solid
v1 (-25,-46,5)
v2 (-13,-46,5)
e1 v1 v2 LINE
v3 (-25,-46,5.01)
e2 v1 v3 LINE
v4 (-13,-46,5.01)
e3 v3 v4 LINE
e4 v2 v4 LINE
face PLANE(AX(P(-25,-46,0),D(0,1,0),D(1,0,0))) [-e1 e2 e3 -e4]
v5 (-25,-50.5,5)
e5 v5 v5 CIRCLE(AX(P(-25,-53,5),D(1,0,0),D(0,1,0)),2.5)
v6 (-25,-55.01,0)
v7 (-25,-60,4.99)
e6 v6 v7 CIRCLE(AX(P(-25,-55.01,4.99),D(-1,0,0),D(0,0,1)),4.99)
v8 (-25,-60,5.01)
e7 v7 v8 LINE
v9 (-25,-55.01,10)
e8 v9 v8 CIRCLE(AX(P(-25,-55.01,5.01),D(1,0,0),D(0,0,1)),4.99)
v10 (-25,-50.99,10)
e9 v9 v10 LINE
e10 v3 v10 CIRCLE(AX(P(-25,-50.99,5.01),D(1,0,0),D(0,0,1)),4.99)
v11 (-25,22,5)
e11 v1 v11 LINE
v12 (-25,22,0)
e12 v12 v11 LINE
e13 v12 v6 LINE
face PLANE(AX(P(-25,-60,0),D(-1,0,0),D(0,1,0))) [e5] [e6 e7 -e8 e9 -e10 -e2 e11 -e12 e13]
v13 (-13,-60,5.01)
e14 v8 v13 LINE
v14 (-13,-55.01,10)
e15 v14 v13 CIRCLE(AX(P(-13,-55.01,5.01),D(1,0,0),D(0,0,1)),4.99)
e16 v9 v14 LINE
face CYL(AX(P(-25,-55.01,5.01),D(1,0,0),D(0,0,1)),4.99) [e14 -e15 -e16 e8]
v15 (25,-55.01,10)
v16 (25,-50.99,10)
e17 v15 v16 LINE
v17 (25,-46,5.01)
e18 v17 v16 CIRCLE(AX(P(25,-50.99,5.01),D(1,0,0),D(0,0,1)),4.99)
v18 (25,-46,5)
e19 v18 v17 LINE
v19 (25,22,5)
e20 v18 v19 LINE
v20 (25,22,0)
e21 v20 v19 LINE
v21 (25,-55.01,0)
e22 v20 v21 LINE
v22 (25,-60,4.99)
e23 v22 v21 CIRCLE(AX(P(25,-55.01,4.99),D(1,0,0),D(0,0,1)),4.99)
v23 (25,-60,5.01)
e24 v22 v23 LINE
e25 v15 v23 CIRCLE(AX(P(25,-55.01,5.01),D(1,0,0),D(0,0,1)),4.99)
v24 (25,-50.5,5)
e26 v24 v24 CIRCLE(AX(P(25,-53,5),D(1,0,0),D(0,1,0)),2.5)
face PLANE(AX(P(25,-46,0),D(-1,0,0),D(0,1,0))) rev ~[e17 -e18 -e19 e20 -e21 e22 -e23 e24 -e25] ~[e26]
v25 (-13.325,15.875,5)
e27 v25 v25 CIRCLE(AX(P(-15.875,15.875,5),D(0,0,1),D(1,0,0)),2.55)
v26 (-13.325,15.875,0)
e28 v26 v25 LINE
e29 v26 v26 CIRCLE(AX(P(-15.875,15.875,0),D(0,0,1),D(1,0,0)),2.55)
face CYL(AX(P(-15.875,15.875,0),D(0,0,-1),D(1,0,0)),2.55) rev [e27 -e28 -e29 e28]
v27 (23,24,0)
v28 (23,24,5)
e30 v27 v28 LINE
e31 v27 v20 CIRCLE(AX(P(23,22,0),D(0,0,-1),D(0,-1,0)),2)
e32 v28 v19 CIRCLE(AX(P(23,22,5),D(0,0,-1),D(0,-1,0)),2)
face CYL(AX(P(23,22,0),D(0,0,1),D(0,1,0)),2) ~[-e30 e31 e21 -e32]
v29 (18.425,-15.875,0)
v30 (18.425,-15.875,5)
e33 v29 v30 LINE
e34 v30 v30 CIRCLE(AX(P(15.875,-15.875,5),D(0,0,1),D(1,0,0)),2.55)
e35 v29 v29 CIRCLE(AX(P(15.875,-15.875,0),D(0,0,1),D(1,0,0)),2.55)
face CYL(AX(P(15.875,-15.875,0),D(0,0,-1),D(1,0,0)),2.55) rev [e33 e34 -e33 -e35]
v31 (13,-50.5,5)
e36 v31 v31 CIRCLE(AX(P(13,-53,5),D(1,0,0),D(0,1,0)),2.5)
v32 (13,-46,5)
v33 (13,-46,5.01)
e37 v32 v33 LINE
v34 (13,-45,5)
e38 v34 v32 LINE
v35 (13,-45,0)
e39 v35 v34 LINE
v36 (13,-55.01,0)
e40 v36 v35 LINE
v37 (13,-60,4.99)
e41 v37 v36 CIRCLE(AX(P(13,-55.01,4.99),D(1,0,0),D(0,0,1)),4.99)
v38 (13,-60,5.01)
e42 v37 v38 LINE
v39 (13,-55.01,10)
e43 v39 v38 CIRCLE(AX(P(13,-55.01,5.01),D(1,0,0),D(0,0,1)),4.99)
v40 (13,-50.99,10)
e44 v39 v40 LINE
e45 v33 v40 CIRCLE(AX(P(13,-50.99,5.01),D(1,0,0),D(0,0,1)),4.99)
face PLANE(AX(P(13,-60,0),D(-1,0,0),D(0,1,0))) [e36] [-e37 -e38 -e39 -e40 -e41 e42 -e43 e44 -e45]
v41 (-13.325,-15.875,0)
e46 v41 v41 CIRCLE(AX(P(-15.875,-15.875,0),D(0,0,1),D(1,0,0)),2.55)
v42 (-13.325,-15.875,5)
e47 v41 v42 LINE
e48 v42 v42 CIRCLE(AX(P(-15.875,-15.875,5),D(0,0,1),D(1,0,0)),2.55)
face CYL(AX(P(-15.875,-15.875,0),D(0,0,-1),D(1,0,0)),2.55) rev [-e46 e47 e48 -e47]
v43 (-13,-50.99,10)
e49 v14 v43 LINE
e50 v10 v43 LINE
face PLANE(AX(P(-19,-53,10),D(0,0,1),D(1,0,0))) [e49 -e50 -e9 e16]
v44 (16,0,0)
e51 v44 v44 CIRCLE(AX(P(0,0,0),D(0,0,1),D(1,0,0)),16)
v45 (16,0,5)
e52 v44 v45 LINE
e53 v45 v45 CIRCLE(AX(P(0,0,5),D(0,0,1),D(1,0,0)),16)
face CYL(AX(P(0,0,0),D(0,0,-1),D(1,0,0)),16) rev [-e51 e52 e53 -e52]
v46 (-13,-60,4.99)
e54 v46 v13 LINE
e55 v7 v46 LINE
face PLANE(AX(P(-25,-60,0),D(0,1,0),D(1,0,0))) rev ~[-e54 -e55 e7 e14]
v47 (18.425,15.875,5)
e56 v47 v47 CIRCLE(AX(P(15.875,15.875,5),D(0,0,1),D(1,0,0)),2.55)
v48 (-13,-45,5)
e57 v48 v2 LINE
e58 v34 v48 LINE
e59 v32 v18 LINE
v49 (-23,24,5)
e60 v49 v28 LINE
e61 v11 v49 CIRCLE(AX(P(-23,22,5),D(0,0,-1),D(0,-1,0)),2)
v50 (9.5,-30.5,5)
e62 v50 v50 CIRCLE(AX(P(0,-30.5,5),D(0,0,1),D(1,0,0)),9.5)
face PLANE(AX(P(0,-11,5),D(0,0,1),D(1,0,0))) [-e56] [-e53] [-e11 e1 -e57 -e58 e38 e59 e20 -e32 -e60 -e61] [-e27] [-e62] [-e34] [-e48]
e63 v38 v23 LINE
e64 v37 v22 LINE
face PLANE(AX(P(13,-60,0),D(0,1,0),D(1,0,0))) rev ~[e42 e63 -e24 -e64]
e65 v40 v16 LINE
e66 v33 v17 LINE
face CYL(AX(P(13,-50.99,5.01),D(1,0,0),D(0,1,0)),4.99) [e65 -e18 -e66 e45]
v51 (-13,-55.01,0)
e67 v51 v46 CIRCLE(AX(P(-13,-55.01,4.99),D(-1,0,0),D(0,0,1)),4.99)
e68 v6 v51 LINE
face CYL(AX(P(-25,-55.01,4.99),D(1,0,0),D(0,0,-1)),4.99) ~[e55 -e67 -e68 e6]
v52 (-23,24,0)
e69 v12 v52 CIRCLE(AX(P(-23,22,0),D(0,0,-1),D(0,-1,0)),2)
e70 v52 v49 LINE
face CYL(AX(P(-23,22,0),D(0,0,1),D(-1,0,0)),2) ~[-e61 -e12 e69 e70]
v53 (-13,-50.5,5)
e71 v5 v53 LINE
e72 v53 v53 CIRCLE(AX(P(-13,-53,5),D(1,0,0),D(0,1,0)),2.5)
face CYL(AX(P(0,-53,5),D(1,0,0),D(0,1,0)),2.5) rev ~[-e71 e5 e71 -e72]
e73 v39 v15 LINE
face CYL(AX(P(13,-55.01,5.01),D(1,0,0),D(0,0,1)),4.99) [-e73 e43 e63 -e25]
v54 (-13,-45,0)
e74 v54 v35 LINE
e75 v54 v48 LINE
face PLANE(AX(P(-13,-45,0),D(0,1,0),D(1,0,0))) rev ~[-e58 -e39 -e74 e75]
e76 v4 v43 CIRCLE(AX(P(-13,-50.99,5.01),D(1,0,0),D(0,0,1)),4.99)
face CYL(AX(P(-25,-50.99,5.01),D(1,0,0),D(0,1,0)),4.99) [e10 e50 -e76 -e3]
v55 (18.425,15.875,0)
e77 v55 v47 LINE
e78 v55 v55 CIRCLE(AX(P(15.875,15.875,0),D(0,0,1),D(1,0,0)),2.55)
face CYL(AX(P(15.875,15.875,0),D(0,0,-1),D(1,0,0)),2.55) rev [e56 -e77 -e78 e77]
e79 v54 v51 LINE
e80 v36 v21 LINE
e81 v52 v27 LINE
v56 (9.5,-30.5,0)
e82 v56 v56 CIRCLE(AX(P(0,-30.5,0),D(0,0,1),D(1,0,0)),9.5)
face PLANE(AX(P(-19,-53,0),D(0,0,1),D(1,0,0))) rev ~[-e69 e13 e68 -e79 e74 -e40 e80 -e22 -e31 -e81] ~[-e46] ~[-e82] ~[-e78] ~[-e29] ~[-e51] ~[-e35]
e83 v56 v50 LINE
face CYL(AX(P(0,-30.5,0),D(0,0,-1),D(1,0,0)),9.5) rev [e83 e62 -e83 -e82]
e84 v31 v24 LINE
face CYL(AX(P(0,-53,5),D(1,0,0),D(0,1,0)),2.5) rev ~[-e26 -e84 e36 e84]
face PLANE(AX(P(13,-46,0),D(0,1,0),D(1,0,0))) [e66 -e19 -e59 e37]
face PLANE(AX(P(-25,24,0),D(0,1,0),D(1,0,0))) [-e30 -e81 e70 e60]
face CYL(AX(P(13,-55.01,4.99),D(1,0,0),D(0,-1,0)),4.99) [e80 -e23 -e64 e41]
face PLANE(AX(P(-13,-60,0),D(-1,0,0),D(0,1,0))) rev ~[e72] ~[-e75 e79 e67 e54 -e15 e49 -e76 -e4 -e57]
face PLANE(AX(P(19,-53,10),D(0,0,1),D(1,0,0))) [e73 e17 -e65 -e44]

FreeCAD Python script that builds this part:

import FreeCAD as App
import Part
import Sketcher


def edges_at(feature, points):
    """Names of the edges that pass closest to the given points."""
    edges = feature.Shape.Edges
    near = lambda p: min(range(len(edges)), key=lambda i: edges[i].distToShape(Part.Vertex(*p))[0])
    return sorted({f"Edge{near(p) + 1}" for p in points})


def add_polygon(sketch, points):
    """Adds a closed chain of lines whose ends are joined by coincident constraints."""
    first, n = sketch.GeometryCount, len(points)
    for a, b in zip(points, points[1:] + points[:1]):
        sketch.addGeometry(Part.LineSegment(App.Vector(*a, 0), App.Vector(*b, 0)), False)
    for i in range(n):
        sketch.addConstraint(Sketcher.Constraint("Coincident", first + i, 2, first + (i + 1) % n, 1))

doc = App.newDocument("Part")
body = doc.addObject("PartDesign::Body", "Body")

# Sketch on XY plane
sketch1 = body.newObject("Sketcher::SketchObject", "Sketch")
sketch1.AttachmentSupport = (doc.getObject("XY_Plane"), [""])
sketch1.MapMode = "FlatFace"
add_polygon(sketch1, [(-25, 24), (-25, -46), (25, -46), (25, 24)])  # lines 0-3
sketch1.addGeometry(Part.Circle(App.Vector(-15.9, -15.9, 0), App.Vector(0, 0, 1), 2.5), False)  # 4
sketch1.addGeometry(Part.Circle(App.Vector(0, -30.5, 0), App.Vector(0, 0, 1), 9.5), False)  # 5
sketch1.addGeometry(Part.Circle(App.Vector(15.9, -15.9, 0), App.Vector(0, 0, 1), 2.5), False)  # 6
sketch1.addGeometry(Part.Circle(App.Vector(-15.9, 15.9, 0), App.Vector(0, 0, 1), 2.5), False)  # 7
sketch1.addGeometry(Part.Circle(App.Vector(0, 0, 0), App.Vector(0, 0, 1), 16), False)  # 8
sketch1.addGeometry(Part.Circle(App.Vector(15.9, 15.9, 0), App.Vector(0, 0, 1), 2.5), False)  # 9
sketch1.addConstraint(Sketcher.Constraint("Vertical", 0))
sketch1.addConstraint(Sketcher.Constraint("Horizontal", 1))
sketch1.addConstraint(Sketcher.Constraint("Vertical", 2))
sketch1.addConstraint(Sketcher.Constraint("Horizontal", 3))
sketch1.addConstraint(Sketcher.Constraint("Coincident", 8, 3, -1, 1))
sketch1.addConstraint(Sketcher.Constraint("Equal", 4, 6))
sketch1.addConstraint(Sketcher.Constraint("Equal", 6, 7))
sketch1.addConstraint(Sketcher.Constraint("Equal", 7, 9))
sketch1.addConstraint(Sketcher.Constraint("Symmetric", 6, 3, 7, 3, -1, 1))
sketch1.addConstraint(Sketcher.Constraint("Symmetric", 4, 3, 9, 3, -1, 1))
sketch1.addConstraint(Sketcher.Constraint("Symmetric", 4, 3, 6, 3, -2))
sketch1.addConstraint(Sketcher.Constraint("PointOnObject", 5, 3, -2))
sketch1.addConstraint(Sketcher.Constraint("Diameter", 5, 19.0))
sketch1.addConstraint(Sketcher.Constraint("Diameter", 8, 32.0))
sketch1.addConstraint(Sketcher.Constraint("Diameter", 4, 5.1))
sketch1.addConstraint(Sketcher.Constraint("DistanceX", 1, 1, 1, 2, 50.0))
sketch1.addConstraint(Sketcher.Constraint("DistanceY", 0, 2, 0, 1, 70.0))
sketch1.addConstraint(Sketcher.Constraint("DistanceX", 0, 2, -1, 1, 25.0))
sketch1.addConstraint(Sketcher.Constraint("DistanceY", 0, 2, -1, 1, 46.0))
sketch1.addConstraint(Sketcher.Constraint("DistanceY", 5, 3, -1, 1, 30.5))
sketch1.addConstraint(Sketcher.Constraint("DistanceX", 4, 3, 6, 3, 31.75))
sketch1.addConstraint(Sketcher.Constraint("DistanceY", 4, 3, 7, 3, 31.75))
pad1 = body.newObject("PartDesign::Pad", "Pad")
pad1.Profile = sketch1
pad1.Length = 5

# Sketch on XY plane
sketch2 = body.newObject("Sketcher::SketchObject", "Sketch001")
sketch2.AttachmentSupport = (doc.getObject("XY_Plane"), [""])
sketch2.MapMode = "FlatFace"
add_polygon(sketch2, [(-25, -46), (-25, -60), (-13, -60), (-13, -46)])  # lines 0-3
add_polygon(sketch2, [(13, -46), (13, -60), (25, -60), (25, -46)])  # lines 4-7
sketch2.addConstraint(Sketcher.Constraint("Vertical", 0))
sketch2.addConstraint(Sketcher.Constraint("Horizontal", 1))
sketch2.addConstraint(Sketcher.Constraint("Vertical", 2))
sketch2.addConstraint(Sketcher.Constraint("Horizontal", 3))
sketch2.addConstraint(Sketcher.Constraint("Vertical", 4))
sketch2.addConstraint(Sketcher.Constraint("Horizontal", 5))
sketch2.addConstraint(Sketcher.Constraint("Vertical", 6))
sketch2.addConstraint(Sketcher.Constraint("Horizontal", 7))
sketch2.addConstraint(Sketcher.Constraint("Symmetric", 1, 2, 4, 2, -2))
sketch2.addConstraint(Sketcher.Constraint("Symmetric", 3, 2, 6, 2, -2))
sketch2.addConstraint(Sketcher.Constraint("DistanceX", 1, 1, 1, 2, 12.0))
sketch2.addConstraint(Sketcher.Constraint("DistanceY", 0, 2, 0, 1, 14.0))
sketch2.addConstraint(Sketcher.Constraint("DistanceX", 0, 2, -1, 1, 25.0))
sketch2.addConstraint(Sketcher.Constraint("DistanceY", 0, 2, -1, 1, 60.0))
pad2 = body.newObject("PartDesign::Pad", "Pad001")
pad2.Profile = sketch2
pad2.Length = 10

# Sketch on YZ plane
sketch3 = body.newObject("Sketcher::SketchObject", "Sketch002")
sketch3.AttachmentSupport = (doc.getObject("YZ_Plane"), [""])
sketch3.MapMode = "FlatFace"
sketch3.addGeometry(Part.Circle(App.Vector(-53, 5, 0), App.Vector(0, 0, 1), 2.5), False)
sketch3.addConstraint(Sketcher.Constraint("Diameter", 0, 5.0))
sketch3.addConstraint(Sketcher.Constraint("DistanceX", 0, 3, -1, 1, 53.0))
sketch3.addConstraint(Sketcher.Constraint("DistanceY", -1, 1, 0, 3, 5.0))
pocket1 = body.newObject("PartDesign::Pocket", "Pocket")
pocket1.Profile = sketch3
pocket1.Length = 50
pocket1.Midplane = True

# Sketch on XY plane
sketch4 = body.newObject("Sketcher::SketchObject", "Sketch003")
sketch4.AttachmentSupport = (doc.getObject("XY_Plane"), [""])
sketch4.MapMode = "FlatFace"
add_polygon(sketch4, [(-13, -45), (-13, -49), (13, -49), (13, -45)])  # lines 0-3
sketch4.addConstraint(Sketcher.Constraint("Vertical", 0))
sketch4.addConstraint(Sketcher.Constraint("Horizontal", 1))
sketch4.addConstraint(Sketcher.Constraint("Vertical", 2))
sketch4.addConstraint(Sketcher.Constraint("Horizontal", 3))
sketch4.addConstraint(Sketcher.Constraint("DistanceX", 1, 1, 1, 2, 26.0))
sketch4.addConstraint(Sketcher.Constraint("DistanceY", 0, 2, 0, 1, 4.0))
sketch4.addConstraint(Sketcher.Constraint("DistanceX", 0, 2, -1, 1, 13.0))
sketch4.addConstraint(Sketcher.Constraint("DistanceY", 0, 2, -1, 1, 49.0))
pocket2 = body.newObject("PartDesign::Pocket", "Pocket001")
pocket2.Profile = sketch4
pocket2.Length = 10
pocket2.Reversed = True
doc.recompute()

fillet = body.newObject("PartDesign::Fillet", "Fillet")
fillet.Base = (pocket2, edges_at(pocket2, [
    (-19, -46, 10),
    (-19, -60, 10),
    (-19, -60, 0),
    (19, -60, 0),
    (19, -60, 10),
    (19, -46, 10),
]))
fillet.Radius = 4.99
doc.recompute()

fillet2 = body.newObject("PartDesign::Fillet", "Fillet001")
fillet2.Base = (fillet, edges_at(fillet, [(25, 24, 2.5), (-25, 24, 2.5)]))
fillet2.Radius = 2

doc.recompute()
